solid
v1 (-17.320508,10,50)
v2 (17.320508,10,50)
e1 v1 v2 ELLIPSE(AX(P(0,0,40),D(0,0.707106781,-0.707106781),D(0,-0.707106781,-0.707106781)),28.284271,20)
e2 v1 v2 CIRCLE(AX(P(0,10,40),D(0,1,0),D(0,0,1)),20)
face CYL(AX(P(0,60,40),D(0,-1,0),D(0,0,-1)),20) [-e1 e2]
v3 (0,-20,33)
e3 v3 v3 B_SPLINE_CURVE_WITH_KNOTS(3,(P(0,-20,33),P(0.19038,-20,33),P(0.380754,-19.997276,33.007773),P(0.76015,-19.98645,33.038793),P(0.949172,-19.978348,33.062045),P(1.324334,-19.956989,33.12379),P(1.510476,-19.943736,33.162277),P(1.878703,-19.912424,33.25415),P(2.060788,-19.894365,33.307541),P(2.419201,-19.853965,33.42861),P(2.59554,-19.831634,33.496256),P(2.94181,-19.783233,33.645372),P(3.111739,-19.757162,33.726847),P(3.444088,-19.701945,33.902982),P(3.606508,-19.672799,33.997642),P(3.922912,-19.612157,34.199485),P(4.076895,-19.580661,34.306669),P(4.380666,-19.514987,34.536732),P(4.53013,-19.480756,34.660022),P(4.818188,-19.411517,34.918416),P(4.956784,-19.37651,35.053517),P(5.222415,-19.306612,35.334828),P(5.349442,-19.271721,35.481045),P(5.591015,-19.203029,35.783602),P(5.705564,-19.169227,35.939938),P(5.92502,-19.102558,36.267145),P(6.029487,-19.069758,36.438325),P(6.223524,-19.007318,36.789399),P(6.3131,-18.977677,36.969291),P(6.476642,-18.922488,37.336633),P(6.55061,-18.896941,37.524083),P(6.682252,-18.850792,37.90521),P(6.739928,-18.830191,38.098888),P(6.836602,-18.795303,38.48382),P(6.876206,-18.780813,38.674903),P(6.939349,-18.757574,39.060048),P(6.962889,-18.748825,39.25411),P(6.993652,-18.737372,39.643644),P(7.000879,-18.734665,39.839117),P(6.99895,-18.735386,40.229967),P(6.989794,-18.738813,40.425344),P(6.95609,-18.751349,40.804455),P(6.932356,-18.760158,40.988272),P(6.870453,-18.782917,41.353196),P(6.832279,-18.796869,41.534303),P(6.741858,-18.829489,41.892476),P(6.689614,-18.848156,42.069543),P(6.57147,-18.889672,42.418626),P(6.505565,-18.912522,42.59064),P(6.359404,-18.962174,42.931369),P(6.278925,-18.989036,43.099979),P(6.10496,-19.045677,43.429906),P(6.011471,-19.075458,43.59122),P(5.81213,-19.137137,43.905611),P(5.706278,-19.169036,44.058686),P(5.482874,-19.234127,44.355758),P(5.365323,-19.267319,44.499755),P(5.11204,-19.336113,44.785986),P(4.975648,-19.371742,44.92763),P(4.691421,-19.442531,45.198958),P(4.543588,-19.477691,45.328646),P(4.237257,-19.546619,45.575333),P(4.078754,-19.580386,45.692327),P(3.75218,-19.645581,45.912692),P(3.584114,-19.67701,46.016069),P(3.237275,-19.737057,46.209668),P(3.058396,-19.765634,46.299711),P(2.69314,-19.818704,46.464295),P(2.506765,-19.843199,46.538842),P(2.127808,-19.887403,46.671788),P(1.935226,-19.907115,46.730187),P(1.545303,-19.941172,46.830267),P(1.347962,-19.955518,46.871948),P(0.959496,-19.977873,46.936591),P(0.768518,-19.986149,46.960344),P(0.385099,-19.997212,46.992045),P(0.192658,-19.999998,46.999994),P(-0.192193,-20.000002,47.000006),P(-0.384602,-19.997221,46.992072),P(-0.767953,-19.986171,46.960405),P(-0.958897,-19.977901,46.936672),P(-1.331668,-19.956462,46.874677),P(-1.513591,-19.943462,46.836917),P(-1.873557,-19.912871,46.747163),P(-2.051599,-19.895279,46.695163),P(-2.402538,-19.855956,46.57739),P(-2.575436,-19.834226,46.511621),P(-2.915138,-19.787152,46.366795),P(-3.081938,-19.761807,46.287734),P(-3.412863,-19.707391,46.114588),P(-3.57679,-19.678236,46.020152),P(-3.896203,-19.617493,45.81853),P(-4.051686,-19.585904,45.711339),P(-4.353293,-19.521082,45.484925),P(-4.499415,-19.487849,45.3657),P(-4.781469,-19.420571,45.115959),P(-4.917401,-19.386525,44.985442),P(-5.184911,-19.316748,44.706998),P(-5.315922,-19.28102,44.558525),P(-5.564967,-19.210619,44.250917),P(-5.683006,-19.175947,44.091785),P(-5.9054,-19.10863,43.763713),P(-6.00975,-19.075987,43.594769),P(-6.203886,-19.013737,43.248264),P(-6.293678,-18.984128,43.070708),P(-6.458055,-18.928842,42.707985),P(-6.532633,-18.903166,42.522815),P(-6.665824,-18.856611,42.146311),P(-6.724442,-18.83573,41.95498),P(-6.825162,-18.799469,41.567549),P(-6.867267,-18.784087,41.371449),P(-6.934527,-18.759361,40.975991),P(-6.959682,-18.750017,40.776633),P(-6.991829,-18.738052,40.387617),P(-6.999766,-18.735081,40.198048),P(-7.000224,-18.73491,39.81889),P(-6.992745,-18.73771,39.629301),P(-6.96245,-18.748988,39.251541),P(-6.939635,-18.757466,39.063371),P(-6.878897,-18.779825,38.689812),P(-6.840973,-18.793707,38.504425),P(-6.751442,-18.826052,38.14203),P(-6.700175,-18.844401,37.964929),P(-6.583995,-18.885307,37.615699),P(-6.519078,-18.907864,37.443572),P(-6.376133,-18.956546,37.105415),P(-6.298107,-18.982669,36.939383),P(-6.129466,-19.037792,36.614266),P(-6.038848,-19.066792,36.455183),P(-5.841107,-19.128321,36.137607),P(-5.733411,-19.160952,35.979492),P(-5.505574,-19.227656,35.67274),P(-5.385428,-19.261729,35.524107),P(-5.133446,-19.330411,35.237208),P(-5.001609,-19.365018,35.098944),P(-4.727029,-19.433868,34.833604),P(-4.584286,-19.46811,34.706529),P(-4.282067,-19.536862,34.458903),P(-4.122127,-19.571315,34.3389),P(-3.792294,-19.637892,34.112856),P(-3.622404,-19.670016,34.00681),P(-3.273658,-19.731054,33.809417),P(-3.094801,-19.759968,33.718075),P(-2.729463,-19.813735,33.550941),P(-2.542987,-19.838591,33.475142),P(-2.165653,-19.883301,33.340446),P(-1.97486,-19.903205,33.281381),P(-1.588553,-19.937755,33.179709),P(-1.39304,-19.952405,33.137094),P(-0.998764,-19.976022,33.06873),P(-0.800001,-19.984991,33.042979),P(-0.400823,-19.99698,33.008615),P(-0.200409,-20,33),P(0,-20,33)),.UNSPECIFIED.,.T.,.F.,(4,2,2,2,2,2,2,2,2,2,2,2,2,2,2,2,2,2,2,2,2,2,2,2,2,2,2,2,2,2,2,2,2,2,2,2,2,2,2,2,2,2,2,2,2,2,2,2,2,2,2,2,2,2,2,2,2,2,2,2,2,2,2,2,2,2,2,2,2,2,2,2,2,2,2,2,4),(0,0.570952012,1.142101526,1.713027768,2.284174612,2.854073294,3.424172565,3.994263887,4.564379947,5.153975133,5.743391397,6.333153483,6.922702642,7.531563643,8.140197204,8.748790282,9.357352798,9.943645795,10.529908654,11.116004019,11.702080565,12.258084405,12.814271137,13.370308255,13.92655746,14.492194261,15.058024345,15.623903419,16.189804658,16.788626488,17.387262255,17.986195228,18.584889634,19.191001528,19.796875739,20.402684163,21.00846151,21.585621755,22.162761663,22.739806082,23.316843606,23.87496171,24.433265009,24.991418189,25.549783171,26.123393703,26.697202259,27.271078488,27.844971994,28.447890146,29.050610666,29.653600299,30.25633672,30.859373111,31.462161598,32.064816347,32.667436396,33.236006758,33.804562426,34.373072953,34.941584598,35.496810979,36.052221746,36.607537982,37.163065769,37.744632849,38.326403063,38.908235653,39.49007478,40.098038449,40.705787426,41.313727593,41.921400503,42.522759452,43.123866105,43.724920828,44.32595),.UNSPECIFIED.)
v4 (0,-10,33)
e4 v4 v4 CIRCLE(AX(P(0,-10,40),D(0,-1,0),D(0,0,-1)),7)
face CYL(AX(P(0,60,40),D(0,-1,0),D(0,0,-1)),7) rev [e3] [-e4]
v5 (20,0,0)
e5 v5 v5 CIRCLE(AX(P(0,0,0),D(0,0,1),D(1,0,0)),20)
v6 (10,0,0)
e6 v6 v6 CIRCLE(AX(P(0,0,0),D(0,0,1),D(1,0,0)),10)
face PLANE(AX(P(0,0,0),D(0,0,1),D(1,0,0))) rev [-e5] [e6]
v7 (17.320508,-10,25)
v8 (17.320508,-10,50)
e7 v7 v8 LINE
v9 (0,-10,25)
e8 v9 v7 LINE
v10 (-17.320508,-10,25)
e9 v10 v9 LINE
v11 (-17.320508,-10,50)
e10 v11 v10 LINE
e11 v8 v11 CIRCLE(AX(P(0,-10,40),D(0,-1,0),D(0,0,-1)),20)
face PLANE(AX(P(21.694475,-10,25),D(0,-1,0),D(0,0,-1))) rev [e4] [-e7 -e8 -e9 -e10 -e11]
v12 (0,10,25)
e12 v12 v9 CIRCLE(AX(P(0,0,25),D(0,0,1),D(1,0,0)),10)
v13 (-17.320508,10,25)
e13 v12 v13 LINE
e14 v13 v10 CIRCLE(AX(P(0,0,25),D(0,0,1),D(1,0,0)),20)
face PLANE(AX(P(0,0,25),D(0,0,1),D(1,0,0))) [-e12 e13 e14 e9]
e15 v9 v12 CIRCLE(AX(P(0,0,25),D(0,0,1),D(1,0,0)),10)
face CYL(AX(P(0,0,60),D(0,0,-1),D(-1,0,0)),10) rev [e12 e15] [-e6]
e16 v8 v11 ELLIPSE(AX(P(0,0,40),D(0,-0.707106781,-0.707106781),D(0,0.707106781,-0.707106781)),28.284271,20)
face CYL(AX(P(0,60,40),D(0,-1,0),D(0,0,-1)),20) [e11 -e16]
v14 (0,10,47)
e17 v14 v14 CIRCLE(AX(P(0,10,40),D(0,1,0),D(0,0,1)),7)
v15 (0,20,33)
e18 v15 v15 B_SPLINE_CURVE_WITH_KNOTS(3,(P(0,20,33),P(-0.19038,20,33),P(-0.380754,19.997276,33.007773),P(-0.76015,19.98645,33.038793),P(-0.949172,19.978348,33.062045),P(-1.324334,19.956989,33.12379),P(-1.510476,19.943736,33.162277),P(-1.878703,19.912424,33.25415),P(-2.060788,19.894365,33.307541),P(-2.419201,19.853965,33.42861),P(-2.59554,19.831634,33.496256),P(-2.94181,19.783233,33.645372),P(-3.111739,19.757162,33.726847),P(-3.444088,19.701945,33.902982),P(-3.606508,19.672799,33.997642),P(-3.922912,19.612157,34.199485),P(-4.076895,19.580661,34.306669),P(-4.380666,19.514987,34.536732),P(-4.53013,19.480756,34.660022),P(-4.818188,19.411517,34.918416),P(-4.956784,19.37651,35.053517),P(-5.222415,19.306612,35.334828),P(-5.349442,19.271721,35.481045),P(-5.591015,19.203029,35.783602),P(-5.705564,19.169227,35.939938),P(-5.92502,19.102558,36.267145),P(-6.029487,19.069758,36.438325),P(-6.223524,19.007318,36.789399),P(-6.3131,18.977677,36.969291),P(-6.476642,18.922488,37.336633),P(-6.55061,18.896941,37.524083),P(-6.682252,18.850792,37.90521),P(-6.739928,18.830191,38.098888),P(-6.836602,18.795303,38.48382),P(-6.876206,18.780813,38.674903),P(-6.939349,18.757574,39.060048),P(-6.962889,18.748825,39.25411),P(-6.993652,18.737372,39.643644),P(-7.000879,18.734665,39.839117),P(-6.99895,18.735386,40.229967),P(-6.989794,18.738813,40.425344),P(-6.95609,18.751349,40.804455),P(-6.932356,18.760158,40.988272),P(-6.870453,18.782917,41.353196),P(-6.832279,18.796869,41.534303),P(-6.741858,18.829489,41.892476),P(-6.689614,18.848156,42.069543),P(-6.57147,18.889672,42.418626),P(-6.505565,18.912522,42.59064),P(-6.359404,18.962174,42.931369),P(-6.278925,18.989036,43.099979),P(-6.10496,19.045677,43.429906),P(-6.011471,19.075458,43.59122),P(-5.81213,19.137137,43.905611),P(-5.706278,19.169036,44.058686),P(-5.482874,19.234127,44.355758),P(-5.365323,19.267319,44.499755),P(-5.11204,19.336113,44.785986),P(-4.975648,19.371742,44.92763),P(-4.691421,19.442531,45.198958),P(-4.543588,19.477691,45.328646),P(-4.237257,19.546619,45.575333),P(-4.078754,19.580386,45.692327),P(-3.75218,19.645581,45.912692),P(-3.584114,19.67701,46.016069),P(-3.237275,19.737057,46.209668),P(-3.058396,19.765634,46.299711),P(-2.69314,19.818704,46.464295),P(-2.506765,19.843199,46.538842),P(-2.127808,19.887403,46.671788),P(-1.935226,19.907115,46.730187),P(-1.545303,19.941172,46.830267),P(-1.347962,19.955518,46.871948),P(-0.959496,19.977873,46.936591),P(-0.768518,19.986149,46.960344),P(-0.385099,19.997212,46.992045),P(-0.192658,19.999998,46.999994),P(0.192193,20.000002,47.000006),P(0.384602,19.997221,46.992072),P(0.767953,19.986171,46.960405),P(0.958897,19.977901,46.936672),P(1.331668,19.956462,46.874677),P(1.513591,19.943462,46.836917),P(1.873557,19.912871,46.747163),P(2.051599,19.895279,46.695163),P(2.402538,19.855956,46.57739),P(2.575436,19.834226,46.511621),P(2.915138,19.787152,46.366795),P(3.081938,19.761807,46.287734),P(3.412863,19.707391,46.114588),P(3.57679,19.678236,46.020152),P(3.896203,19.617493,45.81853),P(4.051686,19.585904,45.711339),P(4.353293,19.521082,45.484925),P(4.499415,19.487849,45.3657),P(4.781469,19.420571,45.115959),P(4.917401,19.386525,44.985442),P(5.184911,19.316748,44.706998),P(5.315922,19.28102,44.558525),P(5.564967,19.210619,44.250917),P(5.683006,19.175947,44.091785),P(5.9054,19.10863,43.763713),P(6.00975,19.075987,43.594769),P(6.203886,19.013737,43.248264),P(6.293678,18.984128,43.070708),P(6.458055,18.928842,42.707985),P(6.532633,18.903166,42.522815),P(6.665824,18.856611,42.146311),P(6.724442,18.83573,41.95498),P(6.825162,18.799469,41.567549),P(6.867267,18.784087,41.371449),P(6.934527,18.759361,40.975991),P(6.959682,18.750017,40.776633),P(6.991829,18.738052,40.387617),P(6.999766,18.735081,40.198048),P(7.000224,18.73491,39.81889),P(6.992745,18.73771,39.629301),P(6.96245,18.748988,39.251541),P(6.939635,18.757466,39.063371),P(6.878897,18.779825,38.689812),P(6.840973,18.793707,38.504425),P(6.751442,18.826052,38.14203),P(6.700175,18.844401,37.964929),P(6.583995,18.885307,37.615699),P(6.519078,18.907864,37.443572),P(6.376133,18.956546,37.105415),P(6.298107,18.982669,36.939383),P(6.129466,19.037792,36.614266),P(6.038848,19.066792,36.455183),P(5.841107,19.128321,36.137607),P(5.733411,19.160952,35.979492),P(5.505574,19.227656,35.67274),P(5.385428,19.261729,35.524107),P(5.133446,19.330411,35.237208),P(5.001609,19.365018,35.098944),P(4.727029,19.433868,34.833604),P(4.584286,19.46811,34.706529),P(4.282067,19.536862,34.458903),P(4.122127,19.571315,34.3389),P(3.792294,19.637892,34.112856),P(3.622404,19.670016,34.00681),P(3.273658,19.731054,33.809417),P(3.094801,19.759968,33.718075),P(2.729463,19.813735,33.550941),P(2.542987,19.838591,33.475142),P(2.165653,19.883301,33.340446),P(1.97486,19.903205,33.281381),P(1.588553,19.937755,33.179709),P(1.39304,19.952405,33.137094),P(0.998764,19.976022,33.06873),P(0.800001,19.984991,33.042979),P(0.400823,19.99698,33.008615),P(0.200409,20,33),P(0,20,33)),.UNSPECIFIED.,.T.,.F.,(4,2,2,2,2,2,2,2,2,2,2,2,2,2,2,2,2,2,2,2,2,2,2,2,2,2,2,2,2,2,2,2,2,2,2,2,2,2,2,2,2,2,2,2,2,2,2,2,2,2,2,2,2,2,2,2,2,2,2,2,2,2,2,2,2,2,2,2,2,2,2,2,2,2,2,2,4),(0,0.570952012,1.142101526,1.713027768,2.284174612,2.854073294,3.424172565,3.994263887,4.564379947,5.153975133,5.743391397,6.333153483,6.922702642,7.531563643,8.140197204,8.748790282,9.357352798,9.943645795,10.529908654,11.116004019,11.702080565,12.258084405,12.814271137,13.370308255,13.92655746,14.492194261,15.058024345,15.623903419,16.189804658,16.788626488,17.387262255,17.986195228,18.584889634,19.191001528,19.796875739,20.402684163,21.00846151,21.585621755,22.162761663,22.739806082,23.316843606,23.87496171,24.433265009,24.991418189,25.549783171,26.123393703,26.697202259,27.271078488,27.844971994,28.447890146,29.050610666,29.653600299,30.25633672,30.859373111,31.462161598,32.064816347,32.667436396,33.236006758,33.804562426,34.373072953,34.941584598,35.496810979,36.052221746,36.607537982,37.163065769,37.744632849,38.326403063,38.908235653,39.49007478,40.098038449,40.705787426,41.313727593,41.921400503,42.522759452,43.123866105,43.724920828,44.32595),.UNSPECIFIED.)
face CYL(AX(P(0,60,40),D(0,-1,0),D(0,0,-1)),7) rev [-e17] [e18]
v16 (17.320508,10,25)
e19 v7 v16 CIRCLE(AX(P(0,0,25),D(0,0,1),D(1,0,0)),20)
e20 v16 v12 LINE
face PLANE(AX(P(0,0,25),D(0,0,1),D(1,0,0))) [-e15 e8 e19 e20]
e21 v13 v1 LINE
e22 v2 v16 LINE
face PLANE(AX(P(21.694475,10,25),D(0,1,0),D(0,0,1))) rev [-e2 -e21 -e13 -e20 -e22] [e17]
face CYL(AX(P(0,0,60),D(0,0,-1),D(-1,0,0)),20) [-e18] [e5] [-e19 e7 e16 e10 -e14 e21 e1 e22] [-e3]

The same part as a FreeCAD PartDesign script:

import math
import FreeCAD as App
import Part
import Sketcher
from FreeCAD import Vector

doc = App.newDocument("Part")
body = doc.addObject("PartDesign::Body", "Body")

# Sketch on XY plane
sketch1 = body.newObject("Sketcher::SketchObject", "Sketch")
sketch1.AttachmentSupport = (doc.getObject("XY_Plane"), [""])
sketch1.MapMode = "FlatFace"
sketch1.addGeometry(Part.Circle(Vector(0, 0, 0), Vector(0, 0, 1), 20), False)
sketch1.addGeometry(Part.Circle(Vector(0, 0, 0), Vector(0, 0, 1), 10), False)
sketch1.addConstraint(Sketcher.Constraint("Coincident", 0, 3, -1, 1))
sketch1.addConstraint(Sketcher.Constraint("Coincident", 1, 3, -1, 1))
sketch1.addConstraint(Sketcher.Constraint("Diameter", 0, 40.0))
sketch1.addConstraint(Sketcher.Constraint("Diameter", 1, 20.0))
pad1 = body.newObject("PartDesign::Pad", "Pad")
pad1.Profile = sketch1
pad1.Length = 60

# Sketch on XZ plane
sketch2 = body.newObject("Sketcher::SketchObject", "Sketch001")
sketch2.AttachmentSupport = (doc.getObject("XZ_Plane"), [""])
sketch2.MapMode = "FlatFace"
sketch2.addGeometry(Part.ArcOfCircle(Part.Circle(Vector(0, 40, 0), Vector(0, 0, 1), 20), math.radians(90), math.radians(180)), False)
sketch2.addGeometry(Part.LineSegment(Vector(-20, 40, 0), Vector(-20, 60, 0)), False)
sketch2.addGeometry(Part.LineSegment(Vector(-20, 60, 0), Vector(0, 60, 0)), False)
sketch2.addGeometry(Part.LineSegment(Vector(20, 60, 0), Vector(20, 40, 0)), False)
sketch2.addGeometry(Part.ArcOfCircle(Part.Circle(Vector(0, 40, 0), Vector(0, 0, 1), 20), math.radians(0), math.radians(90)), False)
sketch2.addGeometry(Part.LineSegment(Vector(0, 60, 0), Vector(20, 60, 0)), False)
sketch2.addGeometry(Part.Circle(Vector(0, 40, 0), Vector(0, 0, 1), 7), False)
sketch2.addConstraint(Sketcher.Constraint("Tangent", 0, 2, 1, 1))
sketch2.addConstraint(Sketcher.Constraint("Coincident", 1, 2, 2, 1))
sketch2.addConstraint(Sketcher.Constraint("Tangent", 2, 2, 0, 1))
sketch2.addConstraint(Sketcher.Constraint("Tangent", 3, 2, 4, 1))
sketch2.addConstraint(Sketcher.Constraint("Tangent", 4, 2, 5, 1))
sketch2.addConstraint(Sketcher.Constraint("Coincident", 5, 2, 3, 1))
sketch2.addConstraint(Sketcher.Constraint("Vertical", 1))
sketch2.addConstraint(Sketcher.Constraint("Horizontal", 2))
sketch2.addConstraint(Sketcher.Constraint("Vertical", 3))
sketch2.addConstraint(Sketcher.Constraint("Horizontal", 5))
sketch2.addConstraint(Sketcher.Constraint("Coincident", 4, 3, 0, 3))
sketch2.addConstraint(Sketcher.Constraint("Coincident", 6, 3, 0, 3))
sketch2.addConstraint(Sketcher.Constraint("Equal", 0, 4))
sketch2.addConstraint(Sketcher.Constraint("PointOnObject", 0, 3, -2))
sketch2.addConstraint(Sketcher.Constraint("Diameter", 6, 14.0))
sketch2.addConstraint(Sketcher.Constraint("Radius", 0, 20.0))
sketch2.addConstraint(Sketcher.Constraint("DistanceY", -1, 1, 0, 3, 40.0))
pocket1 = body.newObject("PartDesign::Pocket", "Pocket")
pocket1.Profile = sketch2
pocket1.Type = "ThroughAll"
pocket1.Midplane = True

# Sketch on XY plane
sketch3 = body.newObject("Sketcher::SketchObject", "Sketch002")
sketch3.AttachmentSupport = (doc.getObject("XY_Plane"), [""])
sketch3.MapMode = "FlatFace"
sketch3.AttachmentOffset = App.Placement(Vector(0, 0, 60), App.Rotation())
sketch3.addGeometry(Part.LineSegment(Vector(-21.694475, 10, 0), Vector(-21.694475, -10, 0)), False)
sketch3.addGeometry(Part.LineSegment(Vector(-21.694475, -10, 0), Vector(21.694475, -10, 0)), False)
sketch3.addGeometry(Part.LineSegment(Vector(21.694475, -10, 0), Vector(21.694475, 10, 0)), False)
sketch3.addGeometry(Part.LineSegment(Vector(21.694475, 10, 0), Vector(-21.694475, 10, 0)), False)
sketch3.addConstraint(Sketcher.Constraint("Coincident", 0, 2, 1, 1))
sketch3.addConstraint(Sketcher.Constraint("Coincident", 1, 2, 2, 1))
sketch3.addConstraint(Sketcher.Constraint("Coincident", 2, 2, 3, 1))
sketch3.addConstraint(Sketcher.Constraint("Coincident", 3, 2, 0, 1))
sketch3.addConstraint(Sketcher.Constraint("Vertical", 0))
sketch3.addConstraint(Sketcher.Constraint("Horizontal", 1))
sketch3.addConstraint(Sketcher.Constraint("Vertical", 2))
sketch3.addConstraint(Sketcher.Constraint("Horizontal", 3))
sketch3.addConstraint(Sketcher.Constraint("Symmetric", 0, 2, 2, 2, -1, 1))
sketch3.addConstraint(Sketcher.Constraint("DistanceY", 0, 2, 0, 1, 20.0))
sketch3.addConstraint(Sketcher.Constraint("DistanceX", 1, 1, 1, 2, 43.38895))
pocket2 = body.newObject("PartDesign::Pocket", "Pocket001")
pocket2.Profile = sketch3
pocket2.Length = 35

doc.recompute()
